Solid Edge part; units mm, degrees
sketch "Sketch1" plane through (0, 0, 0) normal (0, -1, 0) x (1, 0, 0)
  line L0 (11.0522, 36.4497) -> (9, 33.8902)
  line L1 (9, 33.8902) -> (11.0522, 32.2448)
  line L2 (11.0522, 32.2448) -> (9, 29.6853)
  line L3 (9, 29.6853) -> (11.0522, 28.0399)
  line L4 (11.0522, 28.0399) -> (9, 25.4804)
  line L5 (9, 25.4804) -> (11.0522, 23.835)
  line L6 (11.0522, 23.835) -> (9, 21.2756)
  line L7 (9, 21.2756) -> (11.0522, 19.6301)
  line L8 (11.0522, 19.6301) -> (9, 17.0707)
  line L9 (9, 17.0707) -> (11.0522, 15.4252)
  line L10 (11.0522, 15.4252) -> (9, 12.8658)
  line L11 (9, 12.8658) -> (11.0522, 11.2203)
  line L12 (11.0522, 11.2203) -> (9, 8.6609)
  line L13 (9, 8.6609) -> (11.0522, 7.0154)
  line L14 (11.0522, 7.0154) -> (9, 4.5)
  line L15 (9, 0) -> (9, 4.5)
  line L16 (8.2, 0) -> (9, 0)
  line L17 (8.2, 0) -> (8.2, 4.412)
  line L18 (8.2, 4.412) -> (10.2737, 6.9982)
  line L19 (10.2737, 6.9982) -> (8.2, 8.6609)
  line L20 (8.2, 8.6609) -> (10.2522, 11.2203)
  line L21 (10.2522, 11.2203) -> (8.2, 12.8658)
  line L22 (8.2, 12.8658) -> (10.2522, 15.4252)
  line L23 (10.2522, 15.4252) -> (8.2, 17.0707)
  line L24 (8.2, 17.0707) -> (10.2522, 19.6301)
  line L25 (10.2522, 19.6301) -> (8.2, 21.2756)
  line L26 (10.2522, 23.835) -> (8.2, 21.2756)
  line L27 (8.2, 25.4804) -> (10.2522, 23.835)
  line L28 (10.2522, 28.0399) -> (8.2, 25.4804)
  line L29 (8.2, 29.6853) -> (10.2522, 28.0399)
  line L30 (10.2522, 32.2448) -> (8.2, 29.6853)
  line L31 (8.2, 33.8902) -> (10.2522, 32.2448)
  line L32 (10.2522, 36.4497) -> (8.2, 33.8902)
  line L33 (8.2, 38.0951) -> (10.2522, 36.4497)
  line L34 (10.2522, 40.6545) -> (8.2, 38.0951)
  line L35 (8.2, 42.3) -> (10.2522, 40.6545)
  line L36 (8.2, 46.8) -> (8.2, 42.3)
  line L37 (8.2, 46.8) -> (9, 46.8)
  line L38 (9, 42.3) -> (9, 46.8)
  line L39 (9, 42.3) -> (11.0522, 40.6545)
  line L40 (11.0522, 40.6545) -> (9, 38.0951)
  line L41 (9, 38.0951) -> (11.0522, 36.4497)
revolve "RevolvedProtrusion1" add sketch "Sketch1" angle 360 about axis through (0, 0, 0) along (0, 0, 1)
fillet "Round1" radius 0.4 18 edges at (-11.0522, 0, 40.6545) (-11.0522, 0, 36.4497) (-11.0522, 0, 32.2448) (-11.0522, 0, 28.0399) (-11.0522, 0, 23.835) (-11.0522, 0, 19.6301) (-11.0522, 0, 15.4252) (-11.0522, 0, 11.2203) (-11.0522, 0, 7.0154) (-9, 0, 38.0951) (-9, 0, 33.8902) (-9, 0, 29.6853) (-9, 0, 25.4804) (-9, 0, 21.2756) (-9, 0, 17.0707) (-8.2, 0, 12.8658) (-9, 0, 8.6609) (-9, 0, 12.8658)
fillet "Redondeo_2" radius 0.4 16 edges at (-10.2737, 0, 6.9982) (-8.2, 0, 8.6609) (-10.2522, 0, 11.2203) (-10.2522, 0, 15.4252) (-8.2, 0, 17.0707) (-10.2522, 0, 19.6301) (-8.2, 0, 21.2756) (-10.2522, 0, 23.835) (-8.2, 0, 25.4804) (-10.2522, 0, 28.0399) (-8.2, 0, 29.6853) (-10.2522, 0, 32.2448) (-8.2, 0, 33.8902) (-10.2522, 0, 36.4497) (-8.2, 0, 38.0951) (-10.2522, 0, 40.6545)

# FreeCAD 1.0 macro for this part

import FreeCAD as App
import Part
import Sketcher
Q = App.Units.Quantity


def edges_at(feature, points):
    """Names of the edges that pass closest to the given points."""
    edges = feature.Shape.Edges
    near = lambda p: min(range(len(edges)), key=lambda i: edges[i].distToShape(Part.Vertex(*p))[0])
    return sorted({f"Edge{near(p) + 1}" for p in points})


def add_polygon(sketch, points):
    """Adds a closed chain of lines whose ends are joined by coincident constraints."""
    first, n = sketch.GeometryCount, len(points)
    for a, b in zip(points, points[1:] + points[:1]):
        sketch.addGeometry(Part.LineSegment(App.Vector(*a, 0), App.Vector(*b, 0)), False)
    for i in range(n):
        sketch.addConstraint(Sketcher.Constraint("Coincident", first + i, 2, first + (i + 1) % n, 1))

doc = App.newDocument("Part")
body = doc.addObject("PartDesign::Body", "Body")

# Sketch on XZ plane
sketch1 = body.newObject("Sketcher::SketchObject", "Sketch")
sketch1.AttachmentSupport = (doc.getObject("XZ_Plane"), [""])
sketch1.MapMode = "FlatFace"
add_polygon(sketch1, [(9, 33.9), (11.1, 36.4), (9, 38.1), (11.1, 40.7), (9, 42.3), (9, 46.8), (8.2, 46.8), (8.2, 42.3), (10.3, 40.7), (8.2, 38.1), (10.3, 36.4), (8.2, 33.9), (10.3, 32.2), (8.2, 29.7), (10.3, 28), (8.2, 25.5), (10.3, 23.8), (8.2, 21.3), (10.3, 19.6), (8.2, 17.1), (10.3, 15.4), (8.2, 12.9), (10.3, 11.2), (8.2, 8.7), (10.3, 7), (8.2, 4.4), (8.2, 0), (9, 0), (9, 4.5), (11.1, 7), (9, 8.7), (11.1, 11.2), (9, 12.9), (11.1, 15.4), (9, 17.1), (11.1, 19.6), (9, 21.3), (11.1, 23.8), (9, 25.5), (11.1, 28), (9, 29.7), (11.1, 32.2)])  # lines 0-41
sketch1.addConstraint([
    Sketcher.Constraint("Vertical", 4),
    Sketcher.Constraint("Horizontal", 5),
    Sketcher.Constraint("Vertical", 6),
    Sketcher.Constraint("Vertical", 25),
    Sketcher.Constraint("Horizontal", 26),
    Sketcher.Constraint("Vertical", 27),
    Sketcher.Constraint("PointOnObject", 25, 2, -1),
    Sketcher.Constraint("Perpendicular", 0, 1),
    Sketcher.Constraint("Perpendicular", 1, 2),
    Sketcher.Constraint("Perpendicular", 2, 3),
    Sketcher.Constraint("Parallel", 3, 7),
    Sketcher.Constraint("Perpendicular", 7, 8),
    Sketcher.Constraint("Perpendicular", 8, 9),
    Sketcher.Constraint("Perpendicular", 9, 10),
    Sketcher.Constraint("Perpendicular", 10, 11),
    Sketcher.Constraint("Perpendicular", 11, 12),
    Sketcher.Constraint("Perpendicular", 12, 13),
    Sketcher.Constraint("Perpendicular", 13, 14),
    Sketcher.Constraint("Perpendicular", 14, 15),
    Sketcher.Constraint("Perpendicular", 15, 16),
    Sketcher.Constraint("Perpendicular", 16, 17),
    Sketcher.Constraint("Perpendicular", 17, 18),
    Sketcher.Constraint("Perpendicular", 18, 19),
    Sketcher.Constraint("Perpendicular", 19, 20),
    Sketcher.Constraint("Perpendicular", 20, 21),
    Sketcher.Constraint("Perpendicular", 21, 22),
    Sketcher.Constraint("Perpendicular", 22, 23),
    Sketcher.Constraint("Perpendicular", 23, 24),
    Sketcher.Constraint("Perpendicular", 24, 29),
    Sketcher.Constraint("Perpendicular", 29, 30),
    Sketcher.Constraint("Perpendicular", 30, 31),
    Sketcher.Constraint("Perpendicular", 31, 32),
    Sketcher.Constraint("Perpendicular", 32, 33),
    Sketcher.Constraint("Perpendicular", 33, 34),
    Sketcher.Constraint("Perpendicular", 34, 35),
    Sketcher.Constraint("Perpendicular", 35, 36),
    Sketcher.Constraint("Perpendicular", 36, 37),
    Sketcher.Constraint("Perpendicular", 37, 38),
    Sketcher.Constraint("Perpendicular", 38, 39),
    Sketcher.Constraint("Perpendicular", 39, 40),
    Sketcher.Constraint("Perpendicular", 40, 41),
    Sketcher.Constraint("Horizontal", 3, 2, 6, 2),
    Sketcher.Constraint("Horizontal", 2, 2, 7, 2),
    Sketcher.Constraint("Horizontal", 1, 2, 8, 2),
    Sketcher.Constraint("Horizontal", 0, 2, 9, 2),
    Sketcher.Constraint("Horizontal", 22, 2, 29, 2),
    Sketcher.Constraint("Horizontal", 21, 2, 30, 2),
    Sketcher.Constraint("Horizontal", 20, 2, 31, 2),
    Sketcher.Constraint("Horizontal", 19, 2, 32, 2),
    Sketcher.Constraint("Horizontal", 18, 2, 33, 2),
    Sketcher.Constraint("Horizontal", 17, 2, 34, 2),
    Sketcher.Constraint("Horizontal", 16, 2, 35, 2),
    Sketcher.Constraint("Horizontal", 15, 2, 36, 2),
    Sketcher.Constraint("Horizontal", 14, 2, 37, 2),
    Sketcher.Constraint("Horizontal", 13, 2, 38, 2),
    Sketcher.Constraint("Horizontal", 12, 2, 39, 2),
    Sketcher.Constraint("Horizontal", 11, 2, 40, 2),
    Sketcher.Constraint("Horizontal", 10, 2, 41, 2),
    Sketcher.Constraint("Vertical", 0, 2, 2, 2),
    Sketcher.Constraint("Vertical", 1, 2, 3, 2),
    Sketcher.Constraint("Vertical", 8, 2, 10, 2),
    Sketcher.Constraint("Vertical", 9, 2, 11, 2),
    Sketcher.Constraint("Vertical", 10, 2, 12, 2),
    Sketcher.Constraint("Vertical", 11, 2, 13, 2),
    Sketcher.Constraint("Vertical", 12, 2, 14, 2),
    Sketcher.Constraint("Vertical", 13, 2, 15, 2),
    Sketcher.Constraint("Vertical", 14, 2, 16, 2),
    Sketcher.Constraint("Vertical", 15, 2, 17, 2),
    Sketcher.Constraint("Vertical", 16, 2, 18, 2),
    Sketcher.Constraint("Vertical", 17, 2, 19, 2),
    Sketcher.Constraint("Vertical", 18, 2, 20, 2),
    Sketcher.Constraint("Vertical", 19, 2, 21, 2),
    Sketcher.Constraint("Vertical", 20, 2, 22, 2),
    Sketcher.Constraint("Vertical", 22, 2, 24, 2),
    Sketcher.Constraint("Vertical", 4, 2, 26, 2),
    Sketcher.Constraint("Vertical", 2, 2, 28, 2),
    Sketcher.Constraint("Equal", 6, 27),
    Sketcher.Constraint("DistanceX", 5, 2, 5, 1, 0.8),
    Sketcher.Constraint("DistanceY", 4, 1, 4, 2, 4.5),
    Sketcher.Constraint("DistanceX", -1, 1, 1, 2, 9.0),
    Sketcher.Constraint("DistanceY", -1, 1, 3, 2, 42.3),
    Sketcher.Constraint("Angle", 28, Q("50.7906 deg")),
    Sketcher.Constraint("DistanceY", 25, 2, 25, 1, 4.412),
    Sketcher.Constraint("DistanceY", -1, 1, 13, 2, 28.04),
])
revolution = body.newObject("PartDesign::Revolution", "Revolution")
revolution.Profile = sketch1
revolution.ReferenceAxis = (sketch1, ["V_Axis"])
revolution.Angle = 360
doc.recompute()

fillet = body.newObject("PartDesign::Fillet", "Fillet")
fillet.Base = (revolution, edges_at(revolution, [
    (-11.052, 0, 40.654),
    (-11.052, 0, 36.45),
    (-11.052, 0, 32.245),
    (-11.052, 0, 28.04),
    (-11.052, 0, 23.835),
    (-11.052, 0, 19.63),
    (-11.052, 0, 15.425),
    (-11.052, 0, 11.22),
    (-11.052, 0, 7.015),
    (-9, 0, 38.095),
    (-9, 0, 33.89),
    (-9, 0, 29.685),
    (-9, 0, 25.48),
    (-9, 0, 21.276),
    (-9, 0, 17.071),
    (-8.2, 0, 12.866),
    (-9, 0, 8.661),
    (-9, 0, 12.866),
]))
fillet.Radius = 0.4
doc.recompute()

fillet2 = body.newObject("PartDesign::Fillet", "Fillet001")
fillet2.Base = (fillet, edges_at(fillet, [
    (-10.274, 0, 6.998),
    (-8.2, 0, 8.661),
    (-10.252, 0, 11.22),
    (-10.252, 0, 15.425),
    (-8.2, 0, 17.071),
    (-10.252, 0, 19.63),
    (-8.2, 0, 21.276),
    (-10.252, 0, 23.835),
    (-8.2, 0, 25.48),
    (-10.252, 0, 28.04),
    (-8.2, 0, 29.685),
    (-10.252, 0, 32.245),
    (-8.2, 0, 33.89),
    (-10.252, 0, 36.45),
    (-8.2, 0, 38.095),
    (-10.252, 0, 40.654),
]))
fillet2.Radius = 0.4

doc.recompute()
